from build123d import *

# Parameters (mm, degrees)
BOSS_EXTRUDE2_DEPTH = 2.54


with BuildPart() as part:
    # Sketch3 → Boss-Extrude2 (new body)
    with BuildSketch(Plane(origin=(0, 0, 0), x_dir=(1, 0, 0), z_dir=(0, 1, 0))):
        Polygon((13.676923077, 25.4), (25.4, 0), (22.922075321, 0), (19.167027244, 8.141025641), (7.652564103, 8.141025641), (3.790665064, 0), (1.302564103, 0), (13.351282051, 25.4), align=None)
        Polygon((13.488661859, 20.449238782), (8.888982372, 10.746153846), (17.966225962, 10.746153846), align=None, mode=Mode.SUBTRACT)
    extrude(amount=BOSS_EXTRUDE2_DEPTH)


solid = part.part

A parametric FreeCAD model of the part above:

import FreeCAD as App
import Part
import Sketcher
from FreeCAD import Vector
Q = App.Units.Quantity

doc = App.newDocument("Part")
body = doc.addObject("PartDesign::Body", "Body")

# Sketch on XZ plane
sketch1 = body.newObject("Sketcher::SketchObject", "Sketch")
sketch1.AttachmentSupport = (doc.getObject("XZ_Plane"), [""])
sketch1.MapMode = "FlatFace"
sketch1.addGeometry([
    Part.LineSegment(Vector(25.4, 0, 0), Vector(13.676923, -25.4, 0)),  # 0
    Part.LineSegment(Vector(13.676923, -25.4, 0), Vector(13.351282, -25.4, 0)),  # 1
    Part.LineSegment(Vector(13.351282, -25.4, 0), Vector(1.302564, 0, 0)),  # 2
    Part.LineSegment(Vector(1.302564, 0, 0), Vector(3.790665, 0, 0)),  # 3
    Part.LineSegment(Vector(3.790665, 0, 0), Vector(7.652564, -8.141026, 0)),  # 4
    Part.LineSegment(Vector(7.652564, -8.141026, 0), Vector(19.167027, -8.141026, 0)),  # 5
    Part.LineSegment(Vector(19.167027, -8.141026, 0), Vector(22.922075, 0, 0)),  # 6
    Part.LineSegment(Vector(22.922075, 0, 0), Vector(25.4, 0, 0)),  # 7
    Part.LineSegment(Vector(13.488662, -20.449239, 0), Vector(17.966226, -10.746154, 0)),  # 8
    Part.LineSegment(Vector(17.966226, -10.746154, 0), Vector(8.888982, -10.746154, 0)),  # 9
    Part.LineSegment(Vector(8.888982, -10.746154, 0), Vector(13.488662, -20.449239, 0)),  # 10
], False)
sketch1.addConstraint([
    Sketcher.Constraint("Coincident", 0, 2, 1, 1),
    Sketcher.Constraint("Coincident", 1, 2, 2, 1),
    Sketcher.Constraint("Coincident", 2, 2, 3, 1),
    Sketcher.Constraint("Coincident", 3, 2, 4, 1),
    Sketcher.Constraint("Coincident", 4, 2, 5, 1),
    Sketcher.Constraint("Coincident", 5, 2, 6, 1),
    Sketcher.Constraint("Coincident", 6, 2, 7, 1),
    Sketcher.Constraint("Coincident", 7, 2, 0, 1),
    Sketcher.Constraint("Coincident", 8, 2, 9, 1),
    Sketcher.Constraint("Coincident", 9, 2, 10, 1),
    Sketcher.Constraint("Coincident", 10, 2, 8, 1),
    Sketcher.Constraint("Horizontal", 1),
    Sketcher.Constraint("Horizontal", 3),
    Sketcher.Constraint("Horizontal", 5),
    Sketcher.Constraint("Horizontal", 7),
    Sketcher.Constraint("Horizontal", 9),
    Sketcher.Constraint("PointOnObject", 2, 2, -1),
    Sketcher.Constraint("PointOnObject", 6, 2, -1),
    Sketcher.Constraint("DistanceY", 0, 2, -1, 1, Q("1 in")),
    Sketcher.Constraint("DistanceX", -1, 1, 7, 2, Q("1 in")),
    Sketcher.Constraint("DistanceX", 2, 2, 4, 2, Q("0.25 in")),
    Sketcher.Constraint("DistanceX", 3, 1, 3, 2, 2.488101),
    Sketcher.Constraint("DistanceX", 1, 2, 1, 1, 0.325641),
    Sketcher.Constraint("DistanceX", 8, 2, 5, 2, 1.200801),
    Sketcher.Constraint("Distance", 0, 27.97482),
    Sketcher.Constraint("Distance", 4, 9.010581),
    Sketcher.Constraint("DistanceX", 5, 1, 5, 2, 11.514463),
    Sketcher.Constraint("DistanceX", 7, 1, 7, 2, 2.477925),
    Sketcher.Constraint("DistanceX", 9, 2, 9, 1, 9.077244),
    Sketcher.Constraint("DistanceX", -1, 1, 10, 2, 13.488662),
    Sketcher.Constraint("DistanceY", 10, 2, -1, 1, 20.449239),
    Sketcher.Constraint("DistanceX", 2, 2, 0, 2, 12.374359),
    Sketcher.Constraint("DistanceY", 8, 2, 5, 2, 2.605128),
])
pad1 = body.newObject("PartDesign::Pad", "Pad")
pad1.Profile = sketch1
pad1.Length = Q("0.1 in")
pad1.Reversed = True

doc.recompute()
